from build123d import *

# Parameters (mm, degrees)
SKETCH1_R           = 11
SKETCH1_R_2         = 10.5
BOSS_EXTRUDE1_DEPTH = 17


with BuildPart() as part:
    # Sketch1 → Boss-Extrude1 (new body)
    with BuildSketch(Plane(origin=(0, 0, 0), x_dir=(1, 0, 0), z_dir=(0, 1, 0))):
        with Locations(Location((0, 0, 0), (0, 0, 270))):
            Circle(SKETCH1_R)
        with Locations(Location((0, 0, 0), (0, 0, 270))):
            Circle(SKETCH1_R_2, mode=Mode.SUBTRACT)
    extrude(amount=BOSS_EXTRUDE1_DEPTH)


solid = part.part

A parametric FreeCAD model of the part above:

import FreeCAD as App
import Part
import Sketcher
Q = App.Units.Quantity

doc = App.newDocument("Part")
body = doc.addObject("PartDesign::Body", "Body")

# Sketch on XZ plane
sketch1 = body.newObject("Sketcher::SketchObject", "Sketch")
sketch1.AttachmentSupport = (doc.getObject("XZ_Plane"), [""])
sketch1.MapMode = "FlatFace"
sketch1.addGeometry([
    Part.Circle(App.Vector(0, 0, 0), App.Vector(0, 0, 1), 11),
    Part.Circle(App.Vector(0, 0, 0), App.Vector(0, 0, 1), 10),
], False)
sketch1.addConstraint([
    Sketcher.Constraint("Coincident", 0, 3, -1, 1),
    Sketcher.Constraint("Coincident", 1, 3, -1, 1),
    Sketcher.Constraint("Diameter", 0, Q("22 mm")),
    Sketcher.Constraint("Diameter", 1, Q("21 mm")),
])
pad1 = body.newObject("PartDesign::Pad", "Pad")
pad1.Profile = sketch1
pad1.Length = 17
pad1.Reversed = True

doc.recompute()
